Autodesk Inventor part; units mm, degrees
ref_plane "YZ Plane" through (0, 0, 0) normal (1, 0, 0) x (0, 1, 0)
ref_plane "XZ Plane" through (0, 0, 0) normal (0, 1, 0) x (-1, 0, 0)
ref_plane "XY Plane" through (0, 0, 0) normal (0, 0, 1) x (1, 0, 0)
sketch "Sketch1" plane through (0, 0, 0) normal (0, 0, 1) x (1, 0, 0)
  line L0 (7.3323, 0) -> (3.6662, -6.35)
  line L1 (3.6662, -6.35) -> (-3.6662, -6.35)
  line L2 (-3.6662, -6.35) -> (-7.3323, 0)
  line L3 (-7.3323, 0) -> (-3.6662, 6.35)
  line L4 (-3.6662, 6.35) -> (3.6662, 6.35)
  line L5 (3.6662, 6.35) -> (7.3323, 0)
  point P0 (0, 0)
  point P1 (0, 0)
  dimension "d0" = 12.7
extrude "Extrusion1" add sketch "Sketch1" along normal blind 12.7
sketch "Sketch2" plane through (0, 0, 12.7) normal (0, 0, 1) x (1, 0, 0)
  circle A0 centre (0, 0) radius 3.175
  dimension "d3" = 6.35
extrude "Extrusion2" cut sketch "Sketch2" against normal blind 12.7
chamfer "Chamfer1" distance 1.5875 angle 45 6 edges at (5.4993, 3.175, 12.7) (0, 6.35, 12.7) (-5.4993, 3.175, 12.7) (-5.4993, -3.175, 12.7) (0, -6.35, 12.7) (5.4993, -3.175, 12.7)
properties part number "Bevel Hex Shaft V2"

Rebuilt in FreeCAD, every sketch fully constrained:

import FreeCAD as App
import Part
import Sketcher
from FreeCAD import Vector
Q = App.Units.Quantity


def edges_at(feature, points):
    """Names of the edges that pass closest to the given points."""
    edges = feature.Shape.Edges
    near = lambda p: min(range(len(edges)), key=lambda i: edges[i].distToShape(Part.Vertex(*p))[0])
    return sorted({f"Edge{near(p) + 1}" for p in points})

doc = App.newDocument("Part")
body = doc.addObject("PartDesign::Body", "Body")

# Sketch on XY plane
sketch1 = body.newObject("Sketcher::SketchObject", "Sketch")
sketch1.AttachmentSupport = (doc.getObject("XY_Plane"), [""])
sketch1.MapMode = "FlatFace"
sketch1.addGeometry([
    Part.LineSegment(Vector(3.6662, -6.35, 0), Vector(7.3323, 0, 0)),  # 0
    Part.LineSegment(Vector(7.3323, 0, 0), Vector(3.6662, 6.35, 0)),  # 1
    Part.LineSegment(Vector(3.6662, 6.35, 0), Vector(-3.6662, 6.35, 0)),  # 2
    Part.LineSegment(Vector(-3.6662, 6.35, 0), Vector(-7.3323, 0, 0)),  # 3
    Part.LineSegment(Vector(-7.3323, 0, 0), Vector(-3.6662, -6.35, 0)),  # 4
    Part.LineSegment(Vector(-3.6662, -6.35, 0), Vector(3.6662, -6.35, 0)),  # 5
], False)
sketch1.addConstraint([
    Sketcher.Constraint("Coincident", 0, 2, 1, 1),
    Sketcher.Constraint("Coincident", 1, 2, 2, 1),
    Sketcher.Constraint("Coincident", 2, 2, 3, 1),
    Sketcher.Constraint("Coincident", 3, 2, 4, 1),
    Sketcher.Constraint("Coincident", 4, 2, 5, 1),
    Sketcher.Constraint("Coincident", 5, 2, 0, 1),
    Sketcher.Constraint("Horizontal", 2),
    Sketcher.Constraint("Horizontal", 5),
    Sketcher.Constraint("Symmetric", 0, 2, 3, 2, -1, 1),
    Sketcher.Constraint("Symmetric", 1, 2, 4, 2, -1, 1),
    Sketcher.Constraint("PointOnObject", 0, 2, -1),
    Sketcher.Constraint("Parallel", 0, 3),
    Sketcher.Constraint("Vertical", 2, 2, 4, 2),
    Sketcher.Constraint("DistanceY", 4, 2, 2, 2, Q("0.5 in")),
    Sketcher.Constraint("Angle", 0, Q("60.0005 deg")),
    Sketcher.Constraint("DistanceX", 2, 2, 0, 2, Q("0.433 in")),
])
pad1 = body.newObject("PartDesign::Pad", "Pad")
pad1.Profile = sketch1
pad1.Length = Q("0.5 in")

# Sketch on XY plane
sketch2 = body.newObject("Sketcher::SketchObject", "Sketch001")
sketch2.AttachmentSupport = (doc.getObject("XY_Plane"), [""])
sketch2.MapMode = "FlatFace"
sketch2.AttachmentOffset = App.Placement(Vector(0, 0, 0.5 * 25.4), App.Rotation())
sketch2.addGeometry(Part.Circle(Vector(0, 0, 0), Vector(0, 0, 1), 3.175), False)
sketch2.addConstraint([
    Sketcher.Constraint("Coincident", 0, 3, -1, 1),
    Sketcher.Constraint("Diameter", 0, Q("0.25 in")),
])
pocket1 = body.newObject("PartDesign::Pocket", "Pocket")
pocket1.Profile = sketch2
pocket1.Length = Q("0.5 in")
doc.recompute()

chamfer = body.newObject("PartDesign::Chamfer", "Chamfer")
chamfer.Base = (pocket1, edges_at(pocket1, [
    (5.499, 3.175, 12.7),
    (0, 6.35, 12.7),
    (-5.499, 3.175, 12.7),
    (-5.499, -3.175, 12.7),
    (0, -6.35, 12.7),
    (5.499, -3.175, 12.7),
]))
chamfer.Size = Q("0.0625 in")

doc.recompute()
